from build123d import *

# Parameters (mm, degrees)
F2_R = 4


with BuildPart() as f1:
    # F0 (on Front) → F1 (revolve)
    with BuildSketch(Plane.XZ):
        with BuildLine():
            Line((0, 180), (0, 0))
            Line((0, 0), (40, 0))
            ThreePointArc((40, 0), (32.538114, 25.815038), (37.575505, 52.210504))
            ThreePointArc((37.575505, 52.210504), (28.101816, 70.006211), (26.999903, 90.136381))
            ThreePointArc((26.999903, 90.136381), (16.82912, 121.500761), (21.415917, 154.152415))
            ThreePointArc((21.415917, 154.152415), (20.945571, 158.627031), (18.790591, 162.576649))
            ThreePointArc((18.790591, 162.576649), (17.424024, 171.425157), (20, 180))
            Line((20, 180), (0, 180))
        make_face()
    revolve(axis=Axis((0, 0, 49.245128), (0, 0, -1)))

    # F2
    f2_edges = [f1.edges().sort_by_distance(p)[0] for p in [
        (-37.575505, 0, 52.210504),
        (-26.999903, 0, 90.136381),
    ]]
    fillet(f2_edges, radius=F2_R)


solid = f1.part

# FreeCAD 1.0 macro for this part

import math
import FreeCAD as App
import Part
import Sketcher
Q = App.Units.Quantity


def edges_at(feature, points):
    """Names of the edges that pass closest to the given points."""
    edges = feature.Shape.Edges
    near = lambda p: min(range(len(edges)), key=lambda i: edges[i].distToShape(Part.Vertex(*p))[0])
    return sorted({f"Edge{near(p) + 1}" for p in points})

doc = App.newDocument("Part")
body = doc.addObject("PartDesign::Body", "Body")

sketch1 = body.newObject("Sketcher::SketchObject", "Sketch")
sketch1.AttachmentSupport = (doc.getObject("XZ_Plane"), [""])
sketch1.MapMode = "FlatFace"
sketch1.addGeometry([
    Part.LineSegment(App.Vector(0, 180, 0), App.Vector(0, 0, 0)),
    Part.LineSegment(App.Vector(0, 0, 0), App.Vector(40, 0, 0)),
    Part.ArcOfCircle(Part.Circle(App.Vector(90.184821, 28.491974, 0), App.Vector(0, 0, 1), 57.708828), math.radians(155.732111), math.radians(209.585348)),
    Part.ArcOfCircle(Part.Circle(App.Vector(73.147777, 82.567243, 0), App.Vector(0, 0, 1), 46.764497), math.radians(170.685329), math.radians(220.476847)),
    Part.ArcOfCircle(Part.Circle(App.Vector(89.941357, 127.87819, 0), App.Vector(0, 0, 1), 73.389855), math.radians(159.022031), math.radians(210.948317)),
    Part.ArcOfCircle(Part.Circle(App.Vector(9.992788, 155.213709, 0), App.Vector(0, 0, 1), 11.472324), math.radians(-5.307969), math.radians(39.926187)),
    Part.ArcOfCircle(Part.Circle(App.Vector(37.659491, 170.02055, 0), App.Vector(0, 0, 1), 20.284158), math.radians(150.529033), math.radians(201.529549)),
    Part.LineSegment(App.Vector(20, 180, 0), App.Vector(0, 180, 0)),
], False)
sketch1.addConstraint([
    Sketcher.Constraint("Coincident", 0, 2, 1, 1),
    Sketcher.Constraint("Coincident", 1, 2, 2, 2),
    Sketcher.Constraint("Coincident", 2, 1, 3, 2),
    Sketcher.Constraint("Coincident", 3, 1, 4, 2),
    Sketcher.Constraint("Coincident", 4, 1, 5, 1),
    Sketcher.Constraint("Coincident", 5, 2, 6, 2),
    Sketcher.Constraint("Coincident", 6, 1, 7, 1),
    Sketcher.Constraint("Coincident", 7, 2, 0, 1),
    Sketcher.Constraint("Vertical", 0),
    Sketcher.Constraint("Horizontal", 1),
    Sketcher.Constraint("Horizontal", 7),
    Sketcher.Constraint("Coincident", 0, 2, -1, 1),
    Sketcher.Constraint("DistanceX", 1, 1, 1, 2, Q("40 mm")),
    Sketcher.Constraint("DistanceX", 7, 2, 7, 1, Q("20 mm")),
    Sketcher.Constraint("DistanceY", 0, 2, 0, 1, Q("180 mm")),
    Sketcher.Constraint("Radius", 2, Q("57.708828 mm")),
    Sketcher.Constraint("Radius", 3, Q("46.764497 mm")),
    Sketcher.Constraint("Radius", 4, Q("73.389855 mm")),
    Sketcher.Constraint("Radius", 5, Q("11.472324 mm")),
    Sketcher.Constraint("Radius", 6, Q("20.284158 mm")),
    Sketcher.Constraint("DistanceX", 5, 2, 6, 3, Q("18.8689 mm")),
    Sketcher.Constraint("DistanceX", -1, 1, 2, 3, Q("90.184821 mm")),
    Sketcher.Constraint("DistanceY", -1, 1, 4, 3, Q("127.87819 mm")),
    Sketcher.Constraint("DistanceX", -1, 1, 5, 3, Q("9.992788 mm")),
    Sketcher.Constraint("DistanceY", -1, 1, 5, 3, Q("155.213709 mm")),
    Sketcher.Constraint("DistanceY", -1, 1, 3, 1, Q("90.136381 mm")),
    Sketcher.Constraint("DistanceY", 2, 3, 3, 3, Q("54.075269 mm")),
    Sketcher.Constraint("DistanceX", 5, 3, 4, 3, Q("79.948569 mm")),
])
revolution = body.newObject("PartDesign::Revolution", "Revolution")
revolution.Profile = sketch1
revolution.ReferenceAxis = (sketch1, ["V_Axis"])
revolution.Angle = 360
doc.recompute()

fillet = body.newObject("PartDesign::Fillet", "Fillet")
fillet.Base = (revolution, edges_at(revolution, [(-37.576, 0, 52.211), (-27, 0, 90.136)]))
fillet.Radius = 4

doc.recompute()
